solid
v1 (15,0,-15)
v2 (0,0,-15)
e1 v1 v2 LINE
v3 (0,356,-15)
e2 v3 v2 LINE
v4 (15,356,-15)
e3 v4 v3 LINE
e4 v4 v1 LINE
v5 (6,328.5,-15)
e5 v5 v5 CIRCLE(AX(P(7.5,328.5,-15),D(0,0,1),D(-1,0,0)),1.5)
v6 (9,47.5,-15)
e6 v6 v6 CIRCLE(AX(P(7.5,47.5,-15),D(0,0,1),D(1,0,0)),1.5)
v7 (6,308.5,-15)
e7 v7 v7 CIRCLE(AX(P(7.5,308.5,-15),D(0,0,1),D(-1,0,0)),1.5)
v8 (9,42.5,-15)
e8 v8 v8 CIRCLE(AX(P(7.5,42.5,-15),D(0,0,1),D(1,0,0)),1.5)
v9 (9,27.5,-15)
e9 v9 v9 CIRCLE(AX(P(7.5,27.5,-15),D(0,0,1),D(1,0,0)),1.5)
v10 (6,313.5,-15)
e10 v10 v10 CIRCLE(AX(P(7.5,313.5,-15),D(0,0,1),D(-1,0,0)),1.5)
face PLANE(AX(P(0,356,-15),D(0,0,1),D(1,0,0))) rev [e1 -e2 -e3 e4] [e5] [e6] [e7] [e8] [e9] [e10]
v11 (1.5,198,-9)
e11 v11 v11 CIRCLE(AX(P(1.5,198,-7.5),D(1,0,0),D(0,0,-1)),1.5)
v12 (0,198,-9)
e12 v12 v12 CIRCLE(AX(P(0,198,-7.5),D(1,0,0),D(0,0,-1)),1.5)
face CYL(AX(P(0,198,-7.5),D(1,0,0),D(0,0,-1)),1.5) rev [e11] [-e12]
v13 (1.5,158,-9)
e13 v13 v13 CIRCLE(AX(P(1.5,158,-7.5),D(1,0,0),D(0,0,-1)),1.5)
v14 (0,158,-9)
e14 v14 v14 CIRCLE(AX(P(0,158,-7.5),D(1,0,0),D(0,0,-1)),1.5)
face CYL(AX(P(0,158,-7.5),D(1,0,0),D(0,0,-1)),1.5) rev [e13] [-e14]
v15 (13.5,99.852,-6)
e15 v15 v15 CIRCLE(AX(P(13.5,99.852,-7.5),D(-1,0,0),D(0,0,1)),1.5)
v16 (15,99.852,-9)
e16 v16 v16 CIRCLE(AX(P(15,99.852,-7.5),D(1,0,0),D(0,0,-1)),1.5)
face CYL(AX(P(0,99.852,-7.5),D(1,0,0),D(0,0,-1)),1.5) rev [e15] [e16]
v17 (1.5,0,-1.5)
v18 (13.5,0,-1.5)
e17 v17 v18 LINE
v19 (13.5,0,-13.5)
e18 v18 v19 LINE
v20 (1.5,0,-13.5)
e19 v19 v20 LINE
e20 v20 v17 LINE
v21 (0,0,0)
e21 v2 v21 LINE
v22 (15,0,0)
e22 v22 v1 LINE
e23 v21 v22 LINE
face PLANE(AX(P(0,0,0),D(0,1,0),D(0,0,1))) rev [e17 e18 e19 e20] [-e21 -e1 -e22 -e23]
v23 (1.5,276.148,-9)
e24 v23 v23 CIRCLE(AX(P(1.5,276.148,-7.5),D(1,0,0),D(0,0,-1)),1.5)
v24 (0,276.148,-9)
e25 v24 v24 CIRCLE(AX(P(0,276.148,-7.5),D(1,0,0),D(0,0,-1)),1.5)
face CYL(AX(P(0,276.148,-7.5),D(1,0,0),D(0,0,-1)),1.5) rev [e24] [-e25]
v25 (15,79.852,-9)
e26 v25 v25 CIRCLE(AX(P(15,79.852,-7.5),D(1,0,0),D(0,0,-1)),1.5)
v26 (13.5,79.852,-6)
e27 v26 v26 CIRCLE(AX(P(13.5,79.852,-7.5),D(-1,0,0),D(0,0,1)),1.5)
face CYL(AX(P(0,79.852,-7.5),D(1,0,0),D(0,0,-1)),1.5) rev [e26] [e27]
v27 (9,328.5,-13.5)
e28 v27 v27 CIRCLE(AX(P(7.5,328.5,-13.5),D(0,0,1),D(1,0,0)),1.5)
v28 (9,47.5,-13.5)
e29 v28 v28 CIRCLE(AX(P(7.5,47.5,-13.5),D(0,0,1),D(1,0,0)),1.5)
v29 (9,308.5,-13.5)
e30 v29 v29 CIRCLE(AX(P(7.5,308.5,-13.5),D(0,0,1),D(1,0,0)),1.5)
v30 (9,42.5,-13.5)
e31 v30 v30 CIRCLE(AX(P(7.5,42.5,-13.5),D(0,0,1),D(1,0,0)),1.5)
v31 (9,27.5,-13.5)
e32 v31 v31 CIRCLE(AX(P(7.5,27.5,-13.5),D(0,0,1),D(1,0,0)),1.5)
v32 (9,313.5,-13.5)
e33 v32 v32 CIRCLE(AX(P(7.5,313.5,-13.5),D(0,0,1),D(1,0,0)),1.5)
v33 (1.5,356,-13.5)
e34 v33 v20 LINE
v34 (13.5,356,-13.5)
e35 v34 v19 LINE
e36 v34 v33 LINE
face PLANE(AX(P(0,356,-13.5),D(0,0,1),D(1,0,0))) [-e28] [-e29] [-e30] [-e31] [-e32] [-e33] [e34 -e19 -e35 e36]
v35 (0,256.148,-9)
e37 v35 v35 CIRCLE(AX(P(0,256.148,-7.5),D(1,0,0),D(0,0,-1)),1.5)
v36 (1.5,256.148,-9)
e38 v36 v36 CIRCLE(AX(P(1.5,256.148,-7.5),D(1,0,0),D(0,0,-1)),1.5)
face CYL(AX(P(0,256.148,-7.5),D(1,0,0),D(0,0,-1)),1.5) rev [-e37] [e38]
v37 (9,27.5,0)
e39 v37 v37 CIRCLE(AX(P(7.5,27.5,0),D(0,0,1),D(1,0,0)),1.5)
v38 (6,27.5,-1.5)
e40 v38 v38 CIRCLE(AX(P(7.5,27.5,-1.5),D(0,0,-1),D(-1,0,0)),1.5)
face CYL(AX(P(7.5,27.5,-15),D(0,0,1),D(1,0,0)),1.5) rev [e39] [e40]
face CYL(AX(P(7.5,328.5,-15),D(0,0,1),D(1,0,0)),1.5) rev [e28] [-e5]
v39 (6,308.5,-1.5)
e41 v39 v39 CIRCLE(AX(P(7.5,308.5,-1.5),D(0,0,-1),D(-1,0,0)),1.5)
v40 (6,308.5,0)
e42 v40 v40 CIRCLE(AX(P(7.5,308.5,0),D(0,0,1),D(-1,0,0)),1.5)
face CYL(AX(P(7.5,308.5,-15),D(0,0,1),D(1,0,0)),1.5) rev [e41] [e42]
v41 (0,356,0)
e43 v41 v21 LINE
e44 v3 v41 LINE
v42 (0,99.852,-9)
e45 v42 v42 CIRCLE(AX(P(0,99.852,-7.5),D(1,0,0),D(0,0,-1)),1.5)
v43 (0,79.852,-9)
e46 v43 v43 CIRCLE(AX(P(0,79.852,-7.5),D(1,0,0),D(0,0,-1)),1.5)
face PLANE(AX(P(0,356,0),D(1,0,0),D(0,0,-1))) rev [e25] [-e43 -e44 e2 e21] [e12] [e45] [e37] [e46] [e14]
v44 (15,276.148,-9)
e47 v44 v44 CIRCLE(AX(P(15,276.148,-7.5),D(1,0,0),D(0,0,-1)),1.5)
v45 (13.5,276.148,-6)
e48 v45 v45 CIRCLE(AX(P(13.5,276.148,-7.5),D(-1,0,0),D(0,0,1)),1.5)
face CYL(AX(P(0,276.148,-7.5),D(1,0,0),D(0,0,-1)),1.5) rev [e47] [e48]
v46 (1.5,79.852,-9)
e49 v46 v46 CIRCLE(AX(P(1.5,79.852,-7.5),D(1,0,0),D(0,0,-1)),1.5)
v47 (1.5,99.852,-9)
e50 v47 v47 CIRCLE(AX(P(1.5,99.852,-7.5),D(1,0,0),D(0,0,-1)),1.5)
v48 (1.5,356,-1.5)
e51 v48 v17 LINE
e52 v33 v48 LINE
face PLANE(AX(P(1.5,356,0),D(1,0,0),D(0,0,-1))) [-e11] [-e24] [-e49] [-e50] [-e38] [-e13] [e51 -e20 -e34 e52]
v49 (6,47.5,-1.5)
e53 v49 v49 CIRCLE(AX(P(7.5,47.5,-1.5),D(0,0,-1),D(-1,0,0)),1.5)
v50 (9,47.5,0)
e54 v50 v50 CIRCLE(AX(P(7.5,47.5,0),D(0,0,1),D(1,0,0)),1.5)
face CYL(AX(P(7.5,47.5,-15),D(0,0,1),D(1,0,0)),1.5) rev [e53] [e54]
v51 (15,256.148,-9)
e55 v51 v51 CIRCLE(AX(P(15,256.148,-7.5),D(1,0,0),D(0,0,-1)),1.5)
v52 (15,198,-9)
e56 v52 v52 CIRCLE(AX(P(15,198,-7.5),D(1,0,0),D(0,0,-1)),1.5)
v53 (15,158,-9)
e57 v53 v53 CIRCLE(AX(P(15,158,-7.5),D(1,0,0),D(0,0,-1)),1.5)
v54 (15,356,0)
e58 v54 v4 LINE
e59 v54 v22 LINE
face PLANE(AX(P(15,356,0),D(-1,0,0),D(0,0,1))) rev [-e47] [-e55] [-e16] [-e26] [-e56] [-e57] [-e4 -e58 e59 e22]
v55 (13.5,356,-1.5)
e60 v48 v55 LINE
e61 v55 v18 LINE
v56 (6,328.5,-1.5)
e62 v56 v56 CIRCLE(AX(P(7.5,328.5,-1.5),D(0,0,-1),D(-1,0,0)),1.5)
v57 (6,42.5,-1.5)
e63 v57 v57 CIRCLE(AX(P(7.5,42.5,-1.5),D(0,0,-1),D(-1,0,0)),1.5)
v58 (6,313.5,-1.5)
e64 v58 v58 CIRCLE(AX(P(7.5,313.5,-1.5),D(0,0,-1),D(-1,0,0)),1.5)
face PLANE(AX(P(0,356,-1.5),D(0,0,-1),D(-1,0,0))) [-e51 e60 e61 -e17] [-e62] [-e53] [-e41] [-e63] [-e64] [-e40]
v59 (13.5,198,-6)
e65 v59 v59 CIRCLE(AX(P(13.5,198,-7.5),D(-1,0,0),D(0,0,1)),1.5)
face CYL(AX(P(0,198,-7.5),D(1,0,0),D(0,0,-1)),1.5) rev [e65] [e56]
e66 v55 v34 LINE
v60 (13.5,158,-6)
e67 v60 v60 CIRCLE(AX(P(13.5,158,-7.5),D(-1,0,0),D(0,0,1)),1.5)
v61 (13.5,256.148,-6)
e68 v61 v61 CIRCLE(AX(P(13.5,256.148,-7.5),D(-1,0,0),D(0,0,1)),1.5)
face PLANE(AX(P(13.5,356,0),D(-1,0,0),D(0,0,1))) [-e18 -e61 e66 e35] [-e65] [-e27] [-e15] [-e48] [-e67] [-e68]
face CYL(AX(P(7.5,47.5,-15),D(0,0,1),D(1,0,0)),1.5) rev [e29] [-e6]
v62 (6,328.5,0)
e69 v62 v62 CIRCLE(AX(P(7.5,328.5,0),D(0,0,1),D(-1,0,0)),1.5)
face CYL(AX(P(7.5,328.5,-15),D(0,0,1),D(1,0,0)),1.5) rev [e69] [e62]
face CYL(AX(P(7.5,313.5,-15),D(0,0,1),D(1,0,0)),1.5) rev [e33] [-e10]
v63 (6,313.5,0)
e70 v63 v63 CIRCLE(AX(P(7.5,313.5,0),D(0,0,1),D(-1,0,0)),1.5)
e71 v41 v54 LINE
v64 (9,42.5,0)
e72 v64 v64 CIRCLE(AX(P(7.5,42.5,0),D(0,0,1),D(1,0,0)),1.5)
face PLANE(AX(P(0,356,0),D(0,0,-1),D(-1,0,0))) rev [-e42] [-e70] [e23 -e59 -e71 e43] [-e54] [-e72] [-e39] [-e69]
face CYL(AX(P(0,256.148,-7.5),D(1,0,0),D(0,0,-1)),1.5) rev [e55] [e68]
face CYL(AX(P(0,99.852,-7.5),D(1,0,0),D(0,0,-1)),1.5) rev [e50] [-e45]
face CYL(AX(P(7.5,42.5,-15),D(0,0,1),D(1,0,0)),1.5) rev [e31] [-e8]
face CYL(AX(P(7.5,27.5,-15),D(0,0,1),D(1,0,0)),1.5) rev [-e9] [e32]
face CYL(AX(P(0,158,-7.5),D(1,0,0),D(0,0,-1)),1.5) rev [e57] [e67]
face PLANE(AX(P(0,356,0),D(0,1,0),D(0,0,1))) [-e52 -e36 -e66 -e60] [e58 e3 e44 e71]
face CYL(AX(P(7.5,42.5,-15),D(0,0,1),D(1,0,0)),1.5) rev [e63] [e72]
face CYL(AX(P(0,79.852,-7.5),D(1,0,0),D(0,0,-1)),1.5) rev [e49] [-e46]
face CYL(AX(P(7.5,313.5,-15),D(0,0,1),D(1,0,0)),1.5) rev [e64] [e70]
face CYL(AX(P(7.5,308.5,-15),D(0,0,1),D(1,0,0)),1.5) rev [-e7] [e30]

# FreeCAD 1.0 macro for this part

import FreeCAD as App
import Part
import Sketcher

V = App.Vector


def add_polygon(sketch, points):
    """Adds a closed chain of lines whose ends are joined by coincident constraints."""
    first, n = sketch.GeometryCount, len(points)
    for a, b in zip(points, points[1:] + points[:1]):
        sketch.addGeometry(Part.LineSegment(App.Vector(*a, 0), App.Vector(*b, 0)), False)
    for i in range(n):
        sketch.addConstraint(Sketcher.Constraint("Coincident", first + i, 2, first + (i + 1) % n, 1))

doc = App.newDocument("Part")
params = doc.addObject("Spreadsheet::Sheet", "Params")
for row, (alias, value) in enumerate([
    ("sketch1_width", "15 mm"),
    ("sketch1_width2", "12 mm"),
    ("pad1_length", "356 mm"),
    ("sketch2_diameter", "3 mm"),
    ("sketch3_diameter", "3 mm"),
], start=1):
    params.set(f"A{row}", alias)
    params.set(f"B{row}", "=" + value)
    params.setAlias(f"B{row}", alias)

body = doc.addObject("PartDesign::Body", "Body")

# Sketch on XZ plane
sketch1 = doc.addObject("Sketcher::SketchObject", "Sketch")
body.addObject(sketch1)
sketch1.AttachmentSupport = (doc.XZ_Plane, [""])
sketch1.MapMode = "FlatFace"
add_polygon(sketch1, [(0, -15), (0, 0), (15, 0), (15, -15)])  # lines 0-3
add_polygon(sketch1, [(14, -2), (2, -2), (2, -14), (14, -14)])  # lines 4-7
sketch1.addConstraint([
    Sketcher.Constraint("Vertical", 0),
    Sketcher.Constraint("Horizontal", 1),
    Sketcher.Constraint("Vertical", 2),
    Sketcher.Constraint("Horizontal", 3),
    Sketcher.Constraint("Horizontal", 4),
    Sketcher.Constraint("Vertical", 5),
    Sketcher.Constraint("Horizontal", 6),
    Sketcher.Constraint("Vertical", 7),
    Sketcher.Constraint("Coincident", 0, 2, -1, 1),
    Sketcher.Constraint("Equal", 3, 0),
    Sketcher.Constraint("Equal", 6, 5),
    Sketcher.Constraint("DistanceX", 1, 1, 1, 2, 15.0),
    Sketcher.Constraint("DistanceX", 4, 2, 4, 1, 12.0),
    Sketcher.Constraint("DistanceX", -1, 1, 4, 2, 1.5),
    Sketcher.Constraint("DistanceY", 4, 2, -1, 1, 1.5),
])
sketch1.setExpression("Constraints[19]", "Params.sketch1_width")
sketch1.setExpression("Constraints[20]", "Params.sketch1_width2")
pad1 = doc.addObject("PartDesign::Pad", "Pad")
body.addObject(pad1)
pad1.Profile = sketch1
pad1.setExpression("Length", "Params.pad1_length")
pad1.Reversed = True

# Sketch on XY plane
sketch2 = doc.addObject("Sketcher::SketchObject", "Sketch001")
body.addObject(sketch2)
sketch2.AttachmentSupport = (doc.XY_Plane, [""])
sketch2.MapMode = "FlatFace"
sketch2.addGeometry([
    Part.Circle(V(7.5, 27.5, 0), V(0, 0, 1), 1.5),  # 0
    Part.Circle(V(7.5, 47.5, 0), V(0, 0, 1), 1.5),  # 1
    Part.Circle(V(7.5, 42.5, 0), V(0, 0, 1), 1.5),  # 2
    Part.Circle(V(7.5, 328.5, 0), V(0, 0, 1), 1.5),  # 3
    Part.Circle(V(7.5, 313.5, 0), V(0, 0, 1), 1.5),  # 4
    Part.Circle(V(7.5, 308.5, 0), V(0, 0, 1), 1.5),  # 5
], False)
sketch2.addConstraint([
    Sketcher.Constraint("Equal", 0, 1),
    Sketcher.Constraint("Equal", 1, 2),
    Sketcher.Constraint("Equal", 2, 3),
    Sketcher.Constraint("Equal", 3, 4),
    Sketcher.Constraint("Equal", 4, 5),
    Sketcher.Constraint("Vertical", 0, 3, 1, 3),
    Sketcher.Constraint("Vertical", 1, 3, 2, 3),
    Sketcher.Constraint("Vertical", 2, 3, 3, 3),
    Sketcher.Constraint("Vertical", 3, 3, 4, 3),
    Sketcher.Constraint("Vertical", 4, 3, 5, 3),
    Sketcher.Constraint("Diameter", 0, 3.0),
    Sketcher.Constraint("DistanceY", 0, 3, 1, 3, 20.0),
    Sketcher.Constraint("DistanceY", 2, 3, 1, 3, 5.0),
    Sketcher.Constraint("DistanceY", 1, 3, 3, 3, 281.0),
    Sketcher.Constraint("DistanceY", 4, 3, 3, 3, 15.0),
    Sketcher.Constraint("DistanceY", 5, 3, 4, 3, 5.0),
    Sketcher.Constraint("DistanceX", -1, 1, 0, 3, 7.5),
    Sketcher.Constraint("DistanceY", -1, 1, 0, 3, 27.5),
])
sketch2.setExpression("Constraints[10]", "Params.sketch2_diameter")
pocket1 = doc.addObject("PartDesign::Pocket", "Pocket")
body.addObject(pocket1)
pocket1.Profile = sketch2
pocket1.Type = "ThroughAll"

# Sketch on YZ plane
sketch3 = doc.addObject("Sketcher::SketchObject", "Sketch002")
body.addObject(sketch3)
sketch3.AttachmentSupport = (doc.YZ_Plane, [""])
sketch3.MapMode = "FlatFace"
sketch3.AttachmentOffset = App.Placement(V(0, 0, 15), App.Rotation())
sketch3.addGeometry([
    Part.Circle(V(276.1, -7.5, 0), V(0, 0, 1), 1.5),  # 0
    Part.Circle(V(256.1, -7.5, 0), V(0, 0, 1), 1.5),  # 1
    Part.Circle(V(198, -7.5, 0), V(0, 0, 1), 1.5),  # 2
    Part.Circle(V(158, -7.5, 0), V(0, 0, 1), 1.5),  # 3
    Part.Circle(V(99.9, -7.5, 0), V(0, 0, 1), 1.5),  # 4
    Part.Circle(V(79.9, -7.5, 0), V(0, 0, 1), 1.5),  # 5
], False)
sketch3.addConstraint([
    Sketcher.Constraint("Equal", 0, 1),
    Sketcher.Constraint("Equal", 1, 2),
    Sketcher.Constraint("Equal", 2, 3),
    Sketcher.Constraint("Equal", 3, 4),
    Sketcher.Constraint("Equal", 4, 5),
    Sketcher.Constraint("Horizontal", 0, 3, 1, 3),
    Sketcher.Constraint("Horizontal", 1, 3, 2, 3),
    Sketcher.Constraint("Horizontal", 2, 3, 3, 3),
    Sketcher.Constraint("Horizontal", 3, 3, 4, 3),
    Sketcher.Constraint("Horizontal", 4, 3, 5, 3),
    Sketcher.Constraint("Diameter", 0, 3.0),
    Sketcher.Constraint("DistanceX", -1, 1, 2, 3, 198.0),
    Sketcher.Constraint("DistanceX", -1, 1, 3, 3, 158.0),
    Sketcher.Constraint("DistanceX", 1, 3, 0, 3, 20.0),
    Sketcher.Constraint("DistanceX", 5, 3, 4, 3, 20.0),
    Sketcher.Constraint("DistanceY", 0, 3, -1, 1, 7.5),
    Sketcher.Constraint("DistanceX", -1, 1, 0, 3, 276.148),
    Sketcher.Constraint("DistanceX", -1, 1, 4, 3, 99.852),
])
sketch3.setExpression("Constraints[10]", "Params.sketch3_diameter")
pocket2 = doc.addObject("PartDesign::Pocket", "Pocket001")
body.addObject(pocket2)
pocket2.Profile = sketch3
pocket2.Type = "ThroughAll"

doc.recompute()
